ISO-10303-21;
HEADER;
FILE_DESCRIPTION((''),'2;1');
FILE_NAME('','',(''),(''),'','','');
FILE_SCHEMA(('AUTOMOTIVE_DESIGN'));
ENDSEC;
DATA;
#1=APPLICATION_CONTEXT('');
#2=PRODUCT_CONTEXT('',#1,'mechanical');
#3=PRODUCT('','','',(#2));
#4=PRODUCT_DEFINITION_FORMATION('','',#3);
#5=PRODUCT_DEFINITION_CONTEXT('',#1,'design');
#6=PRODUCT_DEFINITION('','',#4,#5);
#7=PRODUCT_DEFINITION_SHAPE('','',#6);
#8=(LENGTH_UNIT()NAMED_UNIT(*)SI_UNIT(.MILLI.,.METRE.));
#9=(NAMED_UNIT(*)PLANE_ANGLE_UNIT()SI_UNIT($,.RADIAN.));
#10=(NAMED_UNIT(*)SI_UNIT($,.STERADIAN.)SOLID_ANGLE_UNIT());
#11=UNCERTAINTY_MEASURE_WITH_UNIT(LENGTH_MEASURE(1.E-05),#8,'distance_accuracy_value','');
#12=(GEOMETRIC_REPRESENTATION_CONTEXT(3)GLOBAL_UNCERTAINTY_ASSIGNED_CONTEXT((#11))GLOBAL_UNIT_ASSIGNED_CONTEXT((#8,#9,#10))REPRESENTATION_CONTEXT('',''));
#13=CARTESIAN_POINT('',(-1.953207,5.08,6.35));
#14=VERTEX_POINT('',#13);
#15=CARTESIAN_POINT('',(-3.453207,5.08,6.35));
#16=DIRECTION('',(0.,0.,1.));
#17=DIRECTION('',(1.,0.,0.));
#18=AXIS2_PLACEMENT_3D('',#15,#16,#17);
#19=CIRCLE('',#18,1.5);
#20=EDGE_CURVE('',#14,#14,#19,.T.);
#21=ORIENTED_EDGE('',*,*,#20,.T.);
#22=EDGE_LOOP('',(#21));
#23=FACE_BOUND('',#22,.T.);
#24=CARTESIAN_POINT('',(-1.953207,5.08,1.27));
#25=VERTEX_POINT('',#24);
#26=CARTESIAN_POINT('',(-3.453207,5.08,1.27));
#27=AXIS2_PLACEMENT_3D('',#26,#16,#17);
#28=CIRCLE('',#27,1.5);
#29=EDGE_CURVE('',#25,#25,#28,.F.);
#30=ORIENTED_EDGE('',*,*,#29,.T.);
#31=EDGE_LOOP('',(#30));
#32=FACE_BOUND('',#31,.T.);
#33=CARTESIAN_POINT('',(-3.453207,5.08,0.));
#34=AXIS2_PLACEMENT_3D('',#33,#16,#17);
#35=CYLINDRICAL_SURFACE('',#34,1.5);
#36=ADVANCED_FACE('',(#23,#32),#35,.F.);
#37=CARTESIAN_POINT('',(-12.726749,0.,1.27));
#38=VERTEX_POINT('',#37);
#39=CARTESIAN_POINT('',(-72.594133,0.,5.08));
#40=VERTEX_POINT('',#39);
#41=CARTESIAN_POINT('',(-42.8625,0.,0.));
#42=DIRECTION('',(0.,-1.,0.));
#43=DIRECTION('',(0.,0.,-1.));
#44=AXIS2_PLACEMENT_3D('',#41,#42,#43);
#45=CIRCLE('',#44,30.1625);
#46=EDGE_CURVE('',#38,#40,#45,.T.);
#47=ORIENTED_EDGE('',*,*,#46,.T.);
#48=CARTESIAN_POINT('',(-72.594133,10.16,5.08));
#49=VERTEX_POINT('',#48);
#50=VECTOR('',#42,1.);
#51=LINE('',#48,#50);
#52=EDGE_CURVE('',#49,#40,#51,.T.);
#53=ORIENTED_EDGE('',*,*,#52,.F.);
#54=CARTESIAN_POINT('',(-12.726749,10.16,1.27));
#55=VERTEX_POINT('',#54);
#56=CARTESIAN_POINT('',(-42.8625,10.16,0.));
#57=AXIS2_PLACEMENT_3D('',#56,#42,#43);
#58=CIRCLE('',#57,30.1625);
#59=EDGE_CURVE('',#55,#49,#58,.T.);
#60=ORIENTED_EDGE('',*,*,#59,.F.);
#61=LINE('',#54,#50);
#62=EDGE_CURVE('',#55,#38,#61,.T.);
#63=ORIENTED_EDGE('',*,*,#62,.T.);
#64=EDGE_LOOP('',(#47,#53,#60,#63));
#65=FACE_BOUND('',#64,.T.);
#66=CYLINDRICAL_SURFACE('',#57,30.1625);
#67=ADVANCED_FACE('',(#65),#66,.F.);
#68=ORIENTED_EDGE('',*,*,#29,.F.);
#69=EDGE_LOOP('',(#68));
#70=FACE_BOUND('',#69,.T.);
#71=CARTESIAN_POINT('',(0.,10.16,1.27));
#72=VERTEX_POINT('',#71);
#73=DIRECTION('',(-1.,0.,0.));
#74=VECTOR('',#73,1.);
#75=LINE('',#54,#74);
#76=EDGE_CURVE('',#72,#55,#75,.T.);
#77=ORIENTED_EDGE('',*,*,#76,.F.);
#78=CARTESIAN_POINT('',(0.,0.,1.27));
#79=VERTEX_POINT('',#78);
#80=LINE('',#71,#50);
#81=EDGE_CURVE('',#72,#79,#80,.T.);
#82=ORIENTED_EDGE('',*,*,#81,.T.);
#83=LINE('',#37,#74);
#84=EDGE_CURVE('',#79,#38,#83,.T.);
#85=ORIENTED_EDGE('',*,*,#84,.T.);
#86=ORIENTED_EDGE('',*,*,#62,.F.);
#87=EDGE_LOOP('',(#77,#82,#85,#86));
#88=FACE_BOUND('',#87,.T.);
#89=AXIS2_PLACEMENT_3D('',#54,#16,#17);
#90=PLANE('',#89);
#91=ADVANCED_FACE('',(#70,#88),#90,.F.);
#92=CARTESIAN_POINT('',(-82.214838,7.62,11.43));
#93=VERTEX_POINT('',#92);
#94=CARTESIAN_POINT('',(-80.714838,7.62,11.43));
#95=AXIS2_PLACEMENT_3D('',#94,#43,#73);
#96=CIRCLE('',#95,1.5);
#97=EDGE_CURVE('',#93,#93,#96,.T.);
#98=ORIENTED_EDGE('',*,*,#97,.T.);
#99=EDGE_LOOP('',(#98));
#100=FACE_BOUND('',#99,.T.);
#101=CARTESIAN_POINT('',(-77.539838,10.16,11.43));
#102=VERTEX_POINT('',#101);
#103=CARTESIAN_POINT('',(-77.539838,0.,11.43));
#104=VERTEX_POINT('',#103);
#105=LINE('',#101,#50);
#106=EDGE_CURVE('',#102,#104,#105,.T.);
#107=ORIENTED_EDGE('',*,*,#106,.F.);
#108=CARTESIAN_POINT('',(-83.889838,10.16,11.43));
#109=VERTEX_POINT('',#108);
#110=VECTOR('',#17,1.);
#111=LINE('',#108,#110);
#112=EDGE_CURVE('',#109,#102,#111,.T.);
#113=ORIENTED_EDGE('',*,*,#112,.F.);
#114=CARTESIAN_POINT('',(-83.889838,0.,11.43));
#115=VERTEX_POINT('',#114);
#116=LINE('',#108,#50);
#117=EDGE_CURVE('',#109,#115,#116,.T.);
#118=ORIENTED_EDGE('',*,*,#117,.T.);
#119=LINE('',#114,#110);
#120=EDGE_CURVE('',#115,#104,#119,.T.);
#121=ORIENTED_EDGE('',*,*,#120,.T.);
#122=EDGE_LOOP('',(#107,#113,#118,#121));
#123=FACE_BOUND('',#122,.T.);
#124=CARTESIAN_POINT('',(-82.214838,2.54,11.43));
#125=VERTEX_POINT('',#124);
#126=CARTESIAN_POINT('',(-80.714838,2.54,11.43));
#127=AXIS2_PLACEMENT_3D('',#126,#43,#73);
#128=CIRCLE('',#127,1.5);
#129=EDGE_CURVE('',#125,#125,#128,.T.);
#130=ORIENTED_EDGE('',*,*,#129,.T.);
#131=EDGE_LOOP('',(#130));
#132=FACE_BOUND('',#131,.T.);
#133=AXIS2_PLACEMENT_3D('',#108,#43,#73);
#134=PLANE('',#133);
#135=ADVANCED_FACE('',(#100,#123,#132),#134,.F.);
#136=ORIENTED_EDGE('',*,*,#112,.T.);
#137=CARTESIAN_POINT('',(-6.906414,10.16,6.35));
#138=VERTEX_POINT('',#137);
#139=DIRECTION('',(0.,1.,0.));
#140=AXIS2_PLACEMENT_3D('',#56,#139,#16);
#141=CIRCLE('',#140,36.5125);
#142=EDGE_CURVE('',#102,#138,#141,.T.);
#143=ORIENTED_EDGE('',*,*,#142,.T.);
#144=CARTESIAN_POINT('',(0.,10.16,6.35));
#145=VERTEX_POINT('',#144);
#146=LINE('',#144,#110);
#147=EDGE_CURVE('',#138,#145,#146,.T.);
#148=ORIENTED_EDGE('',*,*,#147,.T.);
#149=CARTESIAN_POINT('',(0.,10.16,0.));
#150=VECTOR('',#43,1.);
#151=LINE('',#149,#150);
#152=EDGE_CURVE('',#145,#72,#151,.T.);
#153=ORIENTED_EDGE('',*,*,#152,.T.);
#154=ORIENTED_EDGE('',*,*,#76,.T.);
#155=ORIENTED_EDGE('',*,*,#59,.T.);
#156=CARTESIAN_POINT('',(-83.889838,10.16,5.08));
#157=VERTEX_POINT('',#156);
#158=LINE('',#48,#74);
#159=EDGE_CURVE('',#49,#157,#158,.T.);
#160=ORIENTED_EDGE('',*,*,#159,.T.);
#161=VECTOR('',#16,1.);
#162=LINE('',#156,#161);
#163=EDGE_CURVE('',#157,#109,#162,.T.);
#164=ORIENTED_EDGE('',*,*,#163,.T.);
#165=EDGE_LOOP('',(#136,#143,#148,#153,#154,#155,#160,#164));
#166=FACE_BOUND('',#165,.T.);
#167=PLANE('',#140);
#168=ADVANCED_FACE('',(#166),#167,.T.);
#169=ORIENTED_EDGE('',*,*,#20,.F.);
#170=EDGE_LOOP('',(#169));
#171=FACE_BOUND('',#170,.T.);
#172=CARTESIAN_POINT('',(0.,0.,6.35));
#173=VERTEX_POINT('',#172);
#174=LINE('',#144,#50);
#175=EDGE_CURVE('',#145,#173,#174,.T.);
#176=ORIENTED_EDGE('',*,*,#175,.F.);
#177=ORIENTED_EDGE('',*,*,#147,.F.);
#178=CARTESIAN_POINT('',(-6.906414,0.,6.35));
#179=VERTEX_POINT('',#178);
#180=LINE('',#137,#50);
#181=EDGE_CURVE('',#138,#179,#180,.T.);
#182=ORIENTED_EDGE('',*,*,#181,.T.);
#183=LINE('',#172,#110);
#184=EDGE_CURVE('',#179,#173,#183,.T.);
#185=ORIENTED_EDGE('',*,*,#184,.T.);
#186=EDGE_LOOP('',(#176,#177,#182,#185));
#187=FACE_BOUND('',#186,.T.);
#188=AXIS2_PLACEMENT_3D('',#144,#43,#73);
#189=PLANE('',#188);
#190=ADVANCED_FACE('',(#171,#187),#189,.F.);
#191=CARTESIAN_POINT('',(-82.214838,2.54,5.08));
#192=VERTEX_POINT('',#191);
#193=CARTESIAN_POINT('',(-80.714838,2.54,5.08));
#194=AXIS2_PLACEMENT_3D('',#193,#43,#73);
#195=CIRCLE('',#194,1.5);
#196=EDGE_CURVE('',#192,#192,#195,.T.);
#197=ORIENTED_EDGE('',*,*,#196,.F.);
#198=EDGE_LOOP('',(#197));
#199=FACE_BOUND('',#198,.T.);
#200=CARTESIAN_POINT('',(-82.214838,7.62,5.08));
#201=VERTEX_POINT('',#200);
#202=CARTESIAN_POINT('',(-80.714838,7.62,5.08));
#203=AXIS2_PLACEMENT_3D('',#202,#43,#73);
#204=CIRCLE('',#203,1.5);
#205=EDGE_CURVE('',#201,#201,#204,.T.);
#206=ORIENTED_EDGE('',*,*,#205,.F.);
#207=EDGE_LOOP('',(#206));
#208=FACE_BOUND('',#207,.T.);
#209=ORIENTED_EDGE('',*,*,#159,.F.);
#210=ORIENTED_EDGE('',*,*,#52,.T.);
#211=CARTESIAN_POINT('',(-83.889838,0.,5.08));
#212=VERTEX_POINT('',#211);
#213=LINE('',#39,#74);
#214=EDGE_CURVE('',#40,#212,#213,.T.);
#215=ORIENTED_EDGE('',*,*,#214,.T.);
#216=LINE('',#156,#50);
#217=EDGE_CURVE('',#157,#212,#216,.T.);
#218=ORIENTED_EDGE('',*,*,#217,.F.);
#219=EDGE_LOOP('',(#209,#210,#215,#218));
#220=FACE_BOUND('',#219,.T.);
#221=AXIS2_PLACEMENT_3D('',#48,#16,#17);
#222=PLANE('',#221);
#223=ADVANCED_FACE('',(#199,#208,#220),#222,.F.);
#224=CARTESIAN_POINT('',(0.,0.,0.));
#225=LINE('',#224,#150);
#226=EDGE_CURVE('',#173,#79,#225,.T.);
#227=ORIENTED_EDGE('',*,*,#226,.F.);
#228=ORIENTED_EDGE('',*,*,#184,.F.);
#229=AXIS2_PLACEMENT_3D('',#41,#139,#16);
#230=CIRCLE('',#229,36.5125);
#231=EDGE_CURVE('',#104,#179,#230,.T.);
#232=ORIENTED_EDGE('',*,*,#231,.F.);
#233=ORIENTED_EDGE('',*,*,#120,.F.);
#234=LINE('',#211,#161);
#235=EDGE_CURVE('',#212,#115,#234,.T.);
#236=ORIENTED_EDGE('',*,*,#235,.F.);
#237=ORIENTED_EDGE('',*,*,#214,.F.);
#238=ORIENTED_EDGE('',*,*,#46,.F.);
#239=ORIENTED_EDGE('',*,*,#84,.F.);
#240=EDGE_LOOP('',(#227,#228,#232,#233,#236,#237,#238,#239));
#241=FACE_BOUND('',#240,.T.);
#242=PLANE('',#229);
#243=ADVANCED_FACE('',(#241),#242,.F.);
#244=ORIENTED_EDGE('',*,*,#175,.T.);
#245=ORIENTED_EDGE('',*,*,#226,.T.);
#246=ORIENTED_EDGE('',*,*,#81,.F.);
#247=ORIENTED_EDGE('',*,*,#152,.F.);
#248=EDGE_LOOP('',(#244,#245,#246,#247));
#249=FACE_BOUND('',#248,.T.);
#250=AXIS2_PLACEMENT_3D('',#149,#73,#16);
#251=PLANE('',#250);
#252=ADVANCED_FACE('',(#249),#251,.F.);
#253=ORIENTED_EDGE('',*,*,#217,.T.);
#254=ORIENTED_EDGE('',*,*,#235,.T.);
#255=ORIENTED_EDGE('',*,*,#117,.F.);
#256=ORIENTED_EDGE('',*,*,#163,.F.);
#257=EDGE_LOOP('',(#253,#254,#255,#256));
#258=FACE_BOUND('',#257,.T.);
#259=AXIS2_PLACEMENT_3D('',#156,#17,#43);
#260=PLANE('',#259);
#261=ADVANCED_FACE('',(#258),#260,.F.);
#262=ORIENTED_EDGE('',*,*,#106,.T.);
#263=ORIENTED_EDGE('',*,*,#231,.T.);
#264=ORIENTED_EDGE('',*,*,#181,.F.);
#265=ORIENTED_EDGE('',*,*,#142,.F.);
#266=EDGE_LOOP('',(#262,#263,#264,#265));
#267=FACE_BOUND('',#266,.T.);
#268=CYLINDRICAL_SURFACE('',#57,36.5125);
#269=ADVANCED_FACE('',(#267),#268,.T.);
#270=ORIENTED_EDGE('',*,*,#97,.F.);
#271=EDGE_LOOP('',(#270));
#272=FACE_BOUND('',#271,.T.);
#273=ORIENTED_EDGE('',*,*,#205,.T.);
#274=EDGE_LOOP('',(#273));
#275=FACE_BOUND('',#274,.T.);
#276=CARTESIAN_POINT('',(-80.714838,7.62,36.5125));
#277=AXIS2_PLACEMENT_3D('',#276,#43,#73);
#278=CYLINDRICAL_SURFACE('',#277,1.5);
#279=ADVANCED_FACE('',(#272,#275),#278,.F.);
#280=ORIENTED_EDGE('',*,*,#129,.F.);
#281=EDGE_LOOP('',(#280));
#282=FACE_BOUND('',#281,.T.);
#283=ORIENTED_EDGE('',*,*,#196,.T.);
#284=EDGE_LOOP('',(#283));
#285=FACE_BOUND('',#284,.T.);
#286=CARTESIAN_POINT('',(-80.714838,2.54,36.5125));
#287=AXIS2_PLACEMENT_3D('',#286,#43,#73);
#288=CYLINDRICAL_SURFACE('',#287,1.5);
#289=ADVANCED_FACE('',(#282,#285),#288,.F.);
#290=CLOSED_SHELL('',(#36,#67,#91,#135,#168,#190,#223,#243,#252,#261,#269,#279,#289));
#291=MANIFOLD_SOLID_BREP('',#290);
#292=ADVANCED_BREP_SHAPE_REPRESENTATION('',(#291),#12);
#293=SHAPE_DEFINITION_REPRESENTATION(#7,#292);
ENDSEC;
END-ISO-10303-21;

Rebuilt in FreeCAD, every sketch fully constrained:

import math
import FreeCAD as App
import Part
import Sketcher
Q = App.Units.Quantity


def add_polygon(sketch, points):
    """Adds a closed chain of lines whose ends are joined by coincident constraints."""
    first, n = sketch.GeometryCount, len(points)
    for a, b in zip(points, points[1:] + points[:1]):
        sketch.addGeometry(Part.LineSegment(App.Vector(*a, 0), App.Vector(*b, 0)), False)
    for i in range(n):
        sketch.addConstraint(Sketcher.Constraint("Coincident", first + i, 2, first + (i + 1) % n, 1))

doc = App.newDocument("Part")
body = doc.addObject("PartDesign::Body", "Body")

# Sketch on XZ plane
sketch1 = body.newObject("Sketcher::SketchObject", "Sketch")
sketch1.AttachmentSupport = (doc.getObject("XZ_Plane"), [""])
sketch1.MapMode = "FlatFace"
sketch1.addGeometry([
    Part.LineSegment(App.Vector(0, 0, 0), App.Vector(-13, 0, 0)),  # 0
    Part.ArcOfCircle(Part.Circle(App.Vector(-43, 0, 0), App.Vector(0, 0, 1), 30), math.radians(0), math.radians(170)),  # 1
    Part.LineSegment(App.Vector(-73, 5, 0), App.Vector(-84, 5, 0)),  # 2
    Part.LineSegment(App.Vector(-84, 5, 0), App.Vector(-84, 11, 0)),  # 3
    Part.LineSegment(App.Vector(-84, 11, 0), App.Vector(-78, 11, 0)),  # 4
    Part.ArcOfCircle(Part.Circle(App.Vector(-43, 0, 0), App.Vector(0, 0, 1), 37), math.radians(10), math.radians(162)),  # 5
    Part.LineSegment(App.Vector(-7, 6, 0), App.Vector(0, 6, 0)),  # 6
    Part.LineSegment(App.Vector(0, 6, 0), App.Vector(0, 0, 0)),  # 7
], False)
sketch1.addConstraint([
    Sketcher.Constraint("Coincident", 0, 2, 1, 1),
    Sketcher.Constraint("Coincident", 1, 2, 2, 1),
    Sketcher.Constraint("Coincident", 2, 2, 3, 1),
    Sketcher.Constraint("Coincident", 3, 2, 4, 1),
    Sketcher.Constraint("Coincident", 4, 2, 5, 2),
    Sketcher.Constraint("Coincident", 5, 1, 6, 1),
    Sketcher.Constraint("Coincident", 6, 2, 7, 1),
    Sketcher.Constraint("Coincident", 7, 2, 0, 1),
    Sketcher.Constraint("Horizontal", 0),
    Sketcher.Constraint("Horizontal", 2),
    Sketcher.Constraint("Vertical", 3),
    Sketcher.Constraint("Horizontal", 4),
    Sketcher.Constraint("Horizontal", 6),
    Sketcher.Constraint("Vertical", 7),
    Sketcher.Constraint("Coincident", 7, 2, -1, 1),
    Sketcher.Constraint("Coincident", 5, 3, 1, 3),
    Sketcher.Constraint("PointOnObject", 1, 3, -1),
    Sketcher.Constraint("Equal", 4, 3),
    Sketcher.Constraint("Equal", 3, 7),
    Sketcher.Constraint("DistanceX", 0, 2, 0, 1, Q("0.5 in")),
    Sketcher.Constraint("Radius", 1, Q("1.1875 in")),
    Sketcher.Constraint("Radius", 5, Q("1.4375 in")),
    Sketcher.Constraint("DistanceX", 4, 1, 4, 2, Q("0.25 in")),
    Sketcher.Constraint("DistanceY", -1, 1, 1, 2, Q("0.2 in")),
])
pad1 = body.newObject("PartDesign::Pad", "Pad")
pad1.Profile = sketch1
pad1.Length = Q("0.4 in")
pad1.Reversed = True

# Sketch on XY plane
sketch2 = body.newObject("Sketcher::SketchObject", "Sketch001")
sketch2.AttachmentSupport = (doc.getObject("XY_Plane"), [""])
sketch2.MapMode = "FlatFace"
sketch2.AttachmentOffset = App.Placement(App.Vector(0, 0, 0.2 * 25.4), App.Rotation())
sketch2.addGeometry([
    Part.Circle(App.Vector(-80.7, 7.6, 0), App.Vector(0, 0, 1), 1.5),
    Part.Circle(App.Vector(-80.7, 2.5, 0), App.Vector(0, 0, 1), 1.5),
], False)
sketch2.addConstraint([
    Sketcher.Constraint("Equal", 0, 1),
    Sketcher.Constraint("Vertical", 0, 3, 1, 3),
    Sketcher.Constraint("DistanceY", -1, 1, 0, 3, Q("0.3 in")),
    Sketcher.Constraint("DistanceY", -1, 1, 1, 3, Q("0.1 in")),
    Sketcher.Constraint("Diameter", 0, Q("3 mm")),
    Sketcher.Constraint("DistanceX", 0, 3, -1, 1, Q("80.714838 mm")),
])
pocket1 = body.newObject("PartDesign::Pocket", "Pocket")
pocket1.Profile = sketch2
pocket1.Type = "ThroughAll"
pocket1.Reversed = True

# Sketch on XY plane
sketch3 = body.newObject("Sketcher::SketchObject", "Sketch002")
sketch3.AttachmentSupport = (doc.getObject("XY_Plane"), [""])
sketch3.MapMode = "FlatFace"
sketch3.AttachmentOffset = App.Placement(App.Vector(0, 0, 0.25 * 25.4), App.Rotation())
sketch3.addGeometry(Part.Circle(App.Vector(-3.5, 5.1, 0), App.Vector(0, 0, 1), 1.5), False)
sketch3.addConstraint([
    Sketcher.Constraint("DistanceY", -1, 1, 0, 3, Q("0.2 in")),
    Sketcher.Constraint("Diameter", 0, Q("3 mm")),
    Sketcher.Constraint("DistanceX", 0, 3, -1, 1, Q("3.453207 mm")),
])
pocket2 = body.newObject("PartDesign::Pocket", "Pocket001")
pocket2.Profile = sketch3
pocket2.Type = "ThroughAll"

# Sketch on XZ plane
sketch4 = body.newObject("Sketcher::SketchObject", "Sketch003")
sketch4.AttachmentSupport = (doc.getObject("XZ_Plane"), [""])
sketch4.MapMode = "FlatFace"
add_polygon(sketch4, [(-12.7, 1.3), (-12.7, 0), (0, 0), (0, 1.3)])  # lines 0-3
sketch4.addConstraint([
    Sketcher.Constraint("Vertical", 0),
    Sketcher.Constraint("Horizontal", 1),
    Sketcher.Constraint("Vertical", 2),
    Sketcher.Constraint("Horizontal", 3),
    Sketcher.Constraint("Coincident", 1, 2, -1, 1),
    Sketcher.Constraint("DistanceY", 0, 2, 0, 1, Q("0.05 in")),
    Sketcher.Constraint("DistanceX", 1, 1, 1, 2, Q("12.726749 mm")),
])
pocket3 = body.newObject("PartDesign::Pocket", "Pocket002")
pocket3.Profile = sketch4
pocket3.Type = "ThroughAll"

doc.recompute()
